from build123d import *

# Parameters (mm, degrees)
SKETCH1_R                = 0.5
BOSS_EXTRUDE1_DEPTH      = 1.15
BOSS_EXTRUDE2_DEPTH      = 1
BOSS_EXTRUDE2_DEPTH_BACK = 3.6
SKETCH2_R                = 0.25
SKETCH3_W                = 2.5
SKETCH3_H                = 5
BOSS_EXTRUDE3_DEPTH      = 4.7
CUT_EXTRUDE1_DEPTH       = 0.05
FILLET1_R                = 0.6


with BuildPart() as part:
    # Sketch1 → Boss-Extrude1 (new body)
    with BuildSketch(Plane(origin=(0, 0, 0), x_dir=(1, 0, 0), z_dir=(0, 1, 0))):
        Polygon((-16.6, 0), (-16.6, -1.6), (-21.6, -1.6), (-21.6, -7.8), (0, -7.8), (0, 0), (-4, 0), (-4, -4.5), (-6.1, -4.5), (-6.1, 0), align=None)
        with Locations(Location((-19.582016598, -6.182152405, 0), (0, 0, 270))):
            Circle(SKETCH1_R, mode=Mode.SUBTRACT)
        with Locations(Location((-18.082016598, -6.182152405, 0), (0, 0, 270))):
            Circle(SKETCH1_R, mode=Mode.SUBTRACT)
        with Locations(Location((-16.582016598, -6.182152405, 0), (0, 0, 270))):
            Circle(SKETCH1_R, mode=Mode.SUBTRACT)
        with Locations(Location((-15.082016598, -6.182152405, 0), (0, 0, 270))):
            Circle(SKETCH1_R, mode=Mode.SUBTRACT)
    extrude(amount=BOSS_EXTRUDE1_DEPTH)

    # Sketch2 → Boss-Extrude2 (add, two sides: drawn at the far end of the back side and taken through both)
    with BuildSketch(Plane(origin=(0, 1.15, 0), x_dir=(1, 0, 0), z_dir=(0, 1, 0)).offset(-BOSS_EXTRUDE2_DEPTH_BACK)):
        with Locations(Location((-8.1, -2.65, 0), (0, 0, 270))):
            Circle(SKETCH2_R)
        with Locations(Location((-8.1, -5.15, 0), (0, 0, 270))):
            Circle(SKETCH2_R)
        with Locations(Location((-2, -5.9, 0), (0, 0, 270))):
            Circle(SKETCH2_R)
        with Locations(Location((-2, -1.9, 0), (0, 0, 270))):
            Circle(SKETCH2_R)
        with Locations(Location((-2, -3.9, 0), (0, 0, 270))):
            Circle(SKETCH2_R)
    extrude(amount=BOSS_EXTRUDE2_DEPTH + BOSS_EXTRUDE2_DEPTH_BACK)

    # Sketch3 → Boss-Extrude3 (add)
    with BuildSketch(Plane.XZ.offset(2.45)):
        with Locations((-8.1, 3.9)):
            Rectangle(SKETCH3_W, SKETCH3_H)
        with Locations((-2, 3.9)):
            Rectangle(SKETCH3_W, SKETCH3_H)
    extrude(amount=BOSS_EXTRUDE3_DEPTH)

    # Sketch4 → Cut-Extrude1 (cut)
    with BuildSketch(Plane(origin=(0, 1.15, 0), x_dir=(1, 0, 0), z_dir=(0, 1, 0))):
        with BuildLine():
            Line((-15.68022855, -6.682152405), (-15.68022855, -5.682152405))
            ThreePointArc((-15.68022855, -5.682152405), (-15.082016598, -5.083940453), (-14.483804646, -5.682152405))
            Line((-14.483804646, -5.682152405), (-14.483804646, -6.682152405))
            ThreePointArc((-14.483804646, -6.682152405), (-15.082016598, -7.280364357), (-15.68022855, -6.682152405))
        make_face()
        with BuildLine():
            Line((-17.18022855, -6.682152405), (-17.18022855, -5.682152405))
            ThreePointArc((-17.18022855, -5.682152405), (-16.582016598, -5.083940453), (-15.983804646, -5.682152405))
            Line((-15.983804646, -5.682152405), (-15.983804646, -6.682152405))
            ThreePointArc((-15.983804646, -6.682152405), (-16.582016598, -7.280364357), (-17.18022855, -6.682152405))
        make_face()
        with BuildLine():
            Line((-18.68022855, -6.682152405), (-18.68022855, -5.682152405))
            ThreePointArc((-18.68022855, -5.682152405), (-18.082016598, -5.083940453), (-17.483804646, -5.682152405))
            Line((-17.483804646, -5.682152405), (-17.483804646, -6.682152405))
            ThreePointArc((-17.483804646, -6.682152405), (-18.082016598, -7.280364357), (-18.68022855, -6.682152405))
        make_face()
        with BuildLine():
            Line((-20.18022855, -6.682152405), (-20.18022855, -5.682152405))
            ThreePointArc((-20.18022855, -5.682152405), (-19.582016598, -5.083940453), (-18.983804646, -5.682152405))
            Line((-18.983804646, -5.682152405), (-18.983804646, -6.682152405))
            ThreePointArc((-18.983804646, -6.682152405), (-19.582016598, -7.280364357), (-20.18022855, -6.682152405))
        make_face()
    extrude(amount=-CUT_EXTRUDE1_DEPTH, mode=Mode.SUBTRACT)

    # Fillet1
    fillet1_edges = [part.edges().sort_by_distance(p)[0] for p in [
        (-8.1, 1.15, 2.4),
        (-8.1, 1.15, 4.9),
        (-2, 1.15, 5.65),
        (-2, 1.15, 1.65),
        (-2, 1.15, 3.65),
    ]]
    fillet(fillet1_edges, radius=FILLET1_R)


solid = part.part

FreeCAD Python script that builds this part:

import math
import FreeCAD as App
import Part
import Sketcher
from FreeCAD import Vector
Q = App.Units.Quantity


def edges_at(feature, points):
    """Names of the edges that pass closest to the given points."""
    edges = feature.Shape.Edges
    near = lambda p: min(range(len(edges)), key=lambda i: edges[i].distToShape(Part.Vertex(*p))[0])
    return sorted({f"Edge{near(p) + 1}" for p in points})


def add_polygon(sketch, points):
    """Adds a closed chain of lines whose ends are joined by coincident constraints."""
    first, n = sketch.GeometryCount, len(points)
    for a, b in zip(points, points[1:] + points[:1]):
        sketch.addGeometry(Part.LineSegment(App.Vector(*a, 0), App.Vector(*b, 0)), False)
    for i in range(n):
        sketch.addConstraint(Sketcher.Constraint("Coincident", first + i, 2, first + (i + 1) % n, 1))

doc = App.newDocument("Part")
body = doc.addObject("PartDesign::Body", "Body")

# Sketch on XZ plane
sketch1 = doc.addObject("Sketcher::SketchObject", "Sketch")
body.addObject(sketch1)
sketch1.AttachmentSupport = (doc.XZ_Plane, [""])
sketch1.MapMode = "FlatFace"
add_polygon(sketch1, [(-16.6, 0), (-16.6, 1.6), (-21.6, 1.6), (-21.6, 7.8), (0, 7.8), (0, 0), (-4, 0), (-4, 4.5), (-6.1, 4.5), (-6.1, 0)])  # lines 0-9
sketch1.addGeometry(Part.Circle(Vector(-19.582017, 6.182152, 0), Vector(0, 0, 1), 0.5), False)  # 10
sketch1.addGeometry(Part.Circle(Vector(-18.082017, 6.182152, 0), Vector(0, 0, 1), 0.5), False)  # 11
sketch1.addGeometry(Part.Circle(Vector(-16.582017, 6.182152, 0), Vector(0, 0, 1), 0.5), False)  # 12
sketch1.addGeometry(Part.Circle(Vector(-15.082017, 6.182152, 0), Vector(0, 0, 1), 0.5), False)  # 13
sketch1.addConstraint(Sketcher.Constraint("Vertical", 0))
sketch1.addConstraint(Sketcher.Constraint("Horizontal", 1))
sketch1.addConstraint(Sketcher.Constraint("Vertical", 2))
sketch1.addConstraint(Sketcher.Constraint("Horizontal", 3))
sketch1.addConstraint(Sketcher.Constraint("Vertical", 4))
sketch1.addConstraint(Sketcher.Constraint("Horizontal", 5))
sketch1.addConstraint(Sketcher.Constraint("Vertical", 6))
sketch1.addConstraint(Sketcher.Constraint("Horizontal", 7))
sketch1.addConstraint(Sketcher.Constraint("Vertical", 8))
sketch1.addConstraint(Sketcher.Constraint("Horizontal", 9))
sketch1.addConstraint(Sketcher.Constraint("Coincident", 4, 2, -1, 1))
sketch1.addConstraint(Sketcher.Constraint("Equal", 10, 11))
sketch1.addConstraint(Sketcher.Constraint("Equal", 11, 12))
sketch1.addConstraint(Sketcher.Constraint("Equal", 12, 13))
sketch1.addConstraint(Sketcher.Constraint("PointOnObject", 8, 2, -1))
sketch1.addConstraint(Sketcher.Constraint("Horizontal", 10, 3, 11, 3))
sketch1.addConstraint(Sketcher.Constraint("Horizontal", 11, 3, 12, 3))
sketch1.addConstraint(Sketcher.Constraint("Horizontal", 12, 3, 13, 3))
sketch1.addConstraint(Sketcher.Constraint("Diameter", 10, Q("1 mm")))
sketch1.addConstraint(Sketcher.Constraint("DistanceX", 1, 2, 1, 1, Q("5 mm")))
sketch1.addConstraint(Sketcher.Constraint("DistanceX", 5, 2, 5, 1, Q("4 mm")))
sketch1.addConstraint(Sketcher.Constraint("DistanceX", 3, 1, 3, 2, Q("21.6 mm")))
sketch1.addConstraint(Sketcher.Constraint("DistanceX", 7, 2, 7, 1, Q("2.1 mm")))
sketch1.addConstraint(Sketcher.Constraint("DistanceY", 0, 1, 0, 2, Q("1.6 mm")))
sketch1.addConstraint(Sketcher.Constraint("DistanceY", 2, 1, 2, 2, Q("6.2 mm")))
sketch1.addConstraint(Sketcher.Constraint("DistanceY", 6, 1, 6, 2, Q("4.5 mm")))
sketch1.addConstraint(Sketcher.Constraint("DistanceX", 10, 3, 12, 3, Q("3 mm")))
sketch1.addConstraint(Sketcher.Constraint("DistanceX", 11, 3, 13, 3, Q("3 mm")))
sketch1.addConstraint(Sketcher.Constraint("DistanceX", 10, 3, 11, 3, Q("1.5 mm")))
sketch1.addConstraint(Sketcher.Constraint("DistanceX", 10, 3, -1, 1, Q("19.582017 mm")))
sketch1.addConstraint(Sketcher.Constraint("DistanceY", -1, 1, 10, 3, Q("6.182152 mm")))
pad1 = doc.addObject("PartDesign::Pad", "Pad")
body.addObject(pad1)
pad1.Profile = sketch1
pad1.Length = 1.15
pad1.Reversed = True

# Sketch on XZ plane
sketch2 = doc.addObject("Sketcher::SketchObject", "Sketch001")
body.addObject(sketch2)
sketch2.AttachmentSupport = (doc.XZ_Plane, [""])
sketch2.MapMode = "FlatFace"
sketch2.AttachmentOffset = App.Placement(Vector(0, 0, -1.15), App.Rotation())
sketch2.addGeometry(Part.Circle(Vector(-8.1, 2.65, 0), Vector(0, 0, 1), 0.25), False)
sketch2.addGeometry(Part.Circle(Vector(-8.1, 5.15, 0), Vector(0, 0, 1), 0.25), False)
sketch2.addGeometry(Part.Circle(Vector(-2, 5.9, 0), Vector(0, 0, 1), 0.25), False)
sketch2.addGeometry(Part.Circle(Vector(-2, 1.9, 0), Vector(0, 0, 1), 0.25), False)
sketch2.addGeometry(Part.Circle(Vector(-2, 3.9, 0), Vector(0, 0, 1), 0.25), False)
sketch2.addConstraint(Sketcher.Constraint("Equal", 0, 1))
sketch2.addConstraint(Sketcher.Constraint("Equal", 1, 2))
sketch2.addConstraint(Sketcher.Constraint("Equal", 2, 3))
sketch2.addConstraint(Sketcher.Constraint("Equal", 3, 4))
sketch2.addConstraint(Sketcher.Constraint("Vertical", 0, 3, 1, 3))
sketch2.addConstraint(Sketcher.Constraint("Vertical", 2, 3, 3, 3))
sketch2.addConstraint(Sketcher.Constraint("Vertical", 3, 3, 4, 3))
sketch2.addConstraint(Sketcher.Constraint("Diameter", 0, Q("0.5 mm")))
sketch2.addConstraint(Sketcher.Constraint("DistanceX", 2, 3, -1, 1, Q("2 mm")))
sketch2.addConstraint(Sketcher.Constraint("DistanceY", 3, 3, 2, 3, Q("4 mm")))
sketch2.addConstraint(Sketcher.Constraint("DistanceY", 3, 3, 4, 3, Q("2 mm")))
sketch2.addConstraint(Sketcher.Constraint("DistanceX", 0, 3, -1, 1, Q("8.1 mm")))
sketch2.addConstraint(Sketcher.Constraint("DistanceY", -1, 1, 2, 3, Q("5.9 mm")))
sketch2.addConstraint(Sketcher.Constraint("DistanceY", 0, 3, 1, 3, Q("2.5 mm")))
sketch2.addConstraint(Sketcher.Constraint("DistanceY", -1, 1, 0, 3, Q("2.65 mm")))
pad2 = doc.addObject("PartDesign::Pad", "Pad001")
body.addObject(pad2)
pad2.Profile = sketch2
pad2.Type = "TwoLengths"
pad2.Length = 1
pad2.Length2 = 3.6
pad2.Reversed = True

# Sketch on XZ plane
sketch3 = doc.addObject("Sketcher::SketchObject", "Sketch002")
body.addObject(sketch3)
sketch3.AttachmentSupport = (doc.XZ_Plane, [""])
sketch3.MapMode = "FlatFace"
sketch3.AttachmentOffset = App.Placement(Vector(0, 0, 2.45), App.Rotation())
add_polygon(sketch3, [(-9.35, 6.4), (-9.35, 1.4), (-6.85, 1.4), (-6.85, 6.4)])  # lines 0-3
add_polygon(sketch3, [(-3.25, 6.4), (-3.25, 1.4), (-0.75, 1.4), (-0.75, 6.4)])  # lines 4-7
sketch3.addConstraint(Sketcher.Constraint("Vertical", 0))
sketch3.addConstraint(Sketcher.Constraint("Horizontal", 1))
sketch3.addConstraint(Sketcher.Constraint("Vertical", 2))
sketch3.addConstraint(Sketcher.Constraint("Horizontal", 3))
sketch3.addConstraint(Sketcher.Constraint("Vertical", 4))
sketch3.addConstraint(Sketcher.Constraint("Horizontal", 5))
sketch3.addConstraint(Sketcher.Constraint("Vertical", 6))
sketch3.addConstraint(Sketcher.Constraint("Horizontal", 7))
sketch3.addConstraint(Sketcher.Constraint("Horizontal", 1, 2, 4, 2))
sketch3.addConstraint(Sketcher.Constraint("Horizontal", 3, 2, 6, 2))
sketch3.addConstraint(Sketcher.Constraint("Equal", 3, 5))
sketch3.addConstraint(Sketcher.Constraint("DistanceY", 0, 2, 0, 1, Q("5 mm")))
sketch3.addConstraint(Sketcher.Constraint("DistanceX", 1, 1, 1, 2, Q("2.5 mm")))
sketch3.addConstraint(Sketcher.Constraint("DistanceY", -1, 1, 0, 2, Q("1.4 mm")))
sketch3.addConstraint(Sketcher.Constraint("DistanceX", 1, 2, 4, 2, Q("3.6 mm")))
sketch3.addConstraint(Sketcher.Constraint("DistanceX", 0, 2, -1, 1, Q("9.35 mm")))
pad3 = doc.addObject("PartDesign::Pad", "Pad002")
body.addObject(pad3)
pad3.Profile = sketch3
pad3.Length = 4.7

# Sketch on XZ plane
sketch4 = doc.addObject("Sketcher::SketchObject", "Sketch003")
body.addObject(sketch4)
sketch4.AttachmentSupport = (doc.XZ_Plane, [""])
sketch4.MapMode = "FlatFace"
sketch4.AttachmentOffset = App.Placement(Vector(0, 0, -1.15), App.Rotation())
sketch4.addGeometry(Part.LineSegment(Vector(-15.680229, 5.682152, 0), Vector(-15.680229, 6.682152, 0)), False)
sketch4.addGeometry(Part.ArcOfCircle(Part.Circle(Vector(-15.082017, 6.682152, 0), Vector(0, 0, 1), 0.598212), math.radians(0), math.radians(180)), False)
sketch4.addGeometry(Part.LineSegment(Vector(-14.483805, 6.682152, 0), Vector(-14.483805, 5.682152, 0)), False)
sketch4.addGeometry(Part.ArcOfCircle(Part.Circle(Vector(-15.082017, 5.682152, 0), Vector(0, 0, 1), 0.598212), math.radians(180), math.radians(360)), False)
sketch4.addGeometry(Part.LineSegment(Vector(-17.180229, 5.682152, 0), Vector(-17.180229, 6.682152, 0)), False)
sketch4.addGeometry(Part.ArcOfCircle(Part.Circle(Vector(-16.582017, 6.682152, 0), Vector(0, 0, 1), 0.598212), math.radians(0), math.radians(180)), False)
sketch4.addGeometry(Part.LineSegment(Vector(-15.983805, 6.682152, 0), Vector(-15.983805, 5.682152, 0)), False)
sketch4.addGeometry(Part.ArcOfCircle(Part.Circle(Vector(-16.582017, 5.682152, 0), Vector(0, 0, 1), 0.598212), math.radians(180), math.radians(360)), False)
sketch4.addGeometry(Part.LineSegment(Vector(-18.680229, 5.682152, 0), Vector(-18.680229, 6.682152, 0)), False)
sketch4.addGeometry(Part.ArcOfCircle(Part.Circle(Vector(-18.082017, 6.682152, 0), Vector(0, 0, 1), 0.598212), math.radians(0), math.radians(180)), False)
sketch4.addGeometry(Part.LineSegment(Vector(-17.483805, 6.682152, 0), Vector(-17.483805, 5.682152, 0)), False)
sketch4.addGeometry(Part.ArcOfCircle(Part.Circle(Vector(-18.082017, 5.682152, 0), Vector(0, 0, 1), 0.598212), math.radians(180), math.radians(360)), False)
sketch4.addGeometry(Part.LineSegment(Vector(-20.180229, 5.682152, 0), Vector(-20.180229, 6.682152, 0)), False)
sketch4.addGeometry(Part.ArcOfCircle(Part.Circle(Vector(-19.582017, 6.682152, 0), Vector(0, 0, 1), 0.598212), math.radians(0), math.radians(180)), False)
sketch4.addGeometry(Part.LineSegment(Vector(-18.983805, 6.682152, 0), Vector(-18.983805, 5.682152, 0)), False)
sketch4.addGeometry(Part.ArcOfCircle(Part.Circle(Vector(-19.582017, 5.682152, 0), Vector(0, 0, 1), 0.598212), math.radians(180), math.radians(360)), False)
sketch4.addConstraint(Sketcher.Constraint("Tangent", 0, 2, 1, 2))
sketch4.addConstraint(Sketcher.Constraint("Tangent", 1, 1, 2, 1))
sketch4.addConstraint(Sketcher.Constraint("Tangent", 2, 2, 3, 2))
sketch4.addConstraint(Sketcher.Constraint("Tangent", 3, 1, 0, 1))
sketch4.addConstraint(Sketcher.Constraint("Tangent", 4, 2, 5, 2))
sketch4.addConstraint(Sketcher.Constraint("Tangent", 5, 1, 6, 1))
sketch4.addConstraint(Sketcher.Constraint("Tangent", 6, 2, 7, 2))
sketch4.addConstraint(Sketcher.Constraint("Tangent", 7, 1, 4, 1))
sketch4.addConstraint(Sketcher.Constraint("Tangent", 8, 2, 9, 2))
sketch4.addConstraint(Sketcher.Constraint("Tangent", 9, 1, 10, 1))
sketch4.addConstraint(Sketcher.Constraint("Tangent", 10, 2, 11, 2))
sketch4.addConstraint(Sketcher.Constraint("Tangent", 11, 1, 8, 1))
sketch4.addConstraint(Sketcher.Constraint("Tangent", 12, 2, 13, 2))
sketch4.addConstraint(Sketcher.Constraint("Tangent", 13, 1, 14, 1))
sketch4.addConstraint(Sketcher.Constraint("Tangent", 14, 2, 15, 2))
sketch4.addConstraint(Sketcher.Constraint("Tangent", 15, 1, 12, 1))
sketch4.addConstraint(Sketcher.Constraint("Vertical", 0))
sketch4.addConstraint(Sketcher.Constraint("Vertical", 2))
sketch4.addConstraint(Sketcher.Constraint("Vertical", 4))
sketch4.addConstraint(Sketcher.Constraint("Vertical", 6))
sketch4.addConstraint(Sketcher.Constraint("Vertical", 8))
sketch4.addConstraint(Sketcher.Constraint("Vertical", 10))
sketch4.addConstraint(Sketcher.Constraint("Vertical", 12))
sketch4.addConstraint(Sketcher.Constraint("Vertical", 14))
sketch4.addConstraint(Sketcher.Constraint("Equal", 3, 5))
sketch4.addConstraint(Sketcher.Constraint("Equal", 7, 9))
sketch4.addConstraint(Sketcher.Constraint("Equal", 11, 13))
sketch4.addConstraint(Sketcher.Constraint("Horizontal", 1, 3, 5, 3))
sketch4.addConstraint(Sketcher.Constraint("Horizontal", 3, 3, 7, 3))
sketch4.addConstraint(Sketcher.Constraint("Horizontal", 5, 3, 9, 3))
sketch4.addConstraint(Sketcher.Constraint("Horizontal", 7, 3, 11, 3))
sketch4.addConstraint(Sketcher.Constraint("Horizontal", 9, 3, 13, 3))
sketch4.addConstraint(Sketcher.Constraint("Horizontal", 11, 3, 15, 3))
sketch4.addConstraint(Sketcher.Constraint("DistanceY", 0, 1, 0, 2, Q("1 mm")))
sketch4.addConstraint(Sketcher.Constraint("DistanceX", 9, 3, 1, 3, Q("3 mm")))
sketch4.addConstraint(Sketcher.Constraint("DistanceX", 13, 3, 5, 3, Q("3 mm")))
sketch4.addConstraint(Sketcher.Constraint("DistanceX", 5, 3, 1, 3, Q("1.5 mm")))
sketch4.addConstraint(Sketcher.Constraint("Radius", 1, Q("0.598212 mm")))
sketch4.addConstraint(Sketcher.Constraint("DistanceX", 0, 2, -1, 1, Q("15.680229 mm")))
sketch4.addConstraint(Sketcher.Constraint("DistanceY", -1, 1, 1, 3, Q("6.682152 mm")))
pocket1 = doc.addObject("PartDesign::Pocket", "Pocket")
body.addObject(pocket1)
pocket1.Profile = sketch4
pocket1.Length = 0.05
pocket1.Reversed = True
doc.recompute()

fillet = doc.addObject("PartDesign::Fillet", "Fillet")
body.addObject(fillet)
fillet.Base = (pocket1, edges_at(pocket1, [
    (-8.1, 1.15, 2.4),
    (-8.1, 1.15, 4.9),
    (-2, 1.15, 5.65),
    (-2, 1.15, 1.65),
    (-2, 1.15, 3.65),
]))
fillet.Radius = 0.6

doc.recompute()
